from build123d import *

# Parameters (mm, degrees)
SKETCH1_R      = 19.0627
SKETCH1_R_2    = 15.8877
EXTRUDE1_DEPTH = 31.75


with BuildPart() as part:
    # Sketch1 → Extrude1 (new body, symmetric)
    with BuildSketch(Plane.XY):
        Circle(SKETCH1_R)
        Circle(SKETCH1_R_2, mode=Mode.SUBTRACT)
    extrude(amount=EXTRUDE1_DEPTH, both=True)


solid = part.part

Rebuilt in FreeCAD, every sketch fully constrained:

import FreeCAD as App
import Part
import Sketcher

V = App.Vector
Q = App.Units.Quantity

doc = App.newDocument("Part")
body = doc.addObject("PartDesign::Body", "Body")

# Sketch on XY plane
sketch1 = doc.addObject("Sketcher::SketchObject", "Sketch")
body.addObject(sketch1)
sketch1.AttachmentSupport = (doc.XY_Plane, [""])
sketch1.MapMode = "FlatFace"
sketch1.addGeometry(Part.Circle(V(0, 0, 0), V(0, 0, 1), 19), False)
sketch1.addGeometry(Part.Circle(V(0, 0, 0), V(0, 0, 1), 16), False)
sketch1.addConstraint(Sketcher.Constraint("Coincident", 0, 3, -1, 1))
sketch1.addConstraint(Sketcher.Constraint("Coincident", 1, 3, -1, 1))
sketch1.addConstraint(Sketcher.Constraint("Diameter", 0, Q("1.501 in")))
sketch1.addConstraint(Sketcher.Constraint("Diameter", 1, Q("1.251 in")))
pad1 = doc.addObject("PartDesign::Pad", "Pad")
body.addObject(pad1)
pad1.Profile = sketch1
pad1.Length = Q("2.5 in")
pad1.Midplane = True

doc.recompute()
